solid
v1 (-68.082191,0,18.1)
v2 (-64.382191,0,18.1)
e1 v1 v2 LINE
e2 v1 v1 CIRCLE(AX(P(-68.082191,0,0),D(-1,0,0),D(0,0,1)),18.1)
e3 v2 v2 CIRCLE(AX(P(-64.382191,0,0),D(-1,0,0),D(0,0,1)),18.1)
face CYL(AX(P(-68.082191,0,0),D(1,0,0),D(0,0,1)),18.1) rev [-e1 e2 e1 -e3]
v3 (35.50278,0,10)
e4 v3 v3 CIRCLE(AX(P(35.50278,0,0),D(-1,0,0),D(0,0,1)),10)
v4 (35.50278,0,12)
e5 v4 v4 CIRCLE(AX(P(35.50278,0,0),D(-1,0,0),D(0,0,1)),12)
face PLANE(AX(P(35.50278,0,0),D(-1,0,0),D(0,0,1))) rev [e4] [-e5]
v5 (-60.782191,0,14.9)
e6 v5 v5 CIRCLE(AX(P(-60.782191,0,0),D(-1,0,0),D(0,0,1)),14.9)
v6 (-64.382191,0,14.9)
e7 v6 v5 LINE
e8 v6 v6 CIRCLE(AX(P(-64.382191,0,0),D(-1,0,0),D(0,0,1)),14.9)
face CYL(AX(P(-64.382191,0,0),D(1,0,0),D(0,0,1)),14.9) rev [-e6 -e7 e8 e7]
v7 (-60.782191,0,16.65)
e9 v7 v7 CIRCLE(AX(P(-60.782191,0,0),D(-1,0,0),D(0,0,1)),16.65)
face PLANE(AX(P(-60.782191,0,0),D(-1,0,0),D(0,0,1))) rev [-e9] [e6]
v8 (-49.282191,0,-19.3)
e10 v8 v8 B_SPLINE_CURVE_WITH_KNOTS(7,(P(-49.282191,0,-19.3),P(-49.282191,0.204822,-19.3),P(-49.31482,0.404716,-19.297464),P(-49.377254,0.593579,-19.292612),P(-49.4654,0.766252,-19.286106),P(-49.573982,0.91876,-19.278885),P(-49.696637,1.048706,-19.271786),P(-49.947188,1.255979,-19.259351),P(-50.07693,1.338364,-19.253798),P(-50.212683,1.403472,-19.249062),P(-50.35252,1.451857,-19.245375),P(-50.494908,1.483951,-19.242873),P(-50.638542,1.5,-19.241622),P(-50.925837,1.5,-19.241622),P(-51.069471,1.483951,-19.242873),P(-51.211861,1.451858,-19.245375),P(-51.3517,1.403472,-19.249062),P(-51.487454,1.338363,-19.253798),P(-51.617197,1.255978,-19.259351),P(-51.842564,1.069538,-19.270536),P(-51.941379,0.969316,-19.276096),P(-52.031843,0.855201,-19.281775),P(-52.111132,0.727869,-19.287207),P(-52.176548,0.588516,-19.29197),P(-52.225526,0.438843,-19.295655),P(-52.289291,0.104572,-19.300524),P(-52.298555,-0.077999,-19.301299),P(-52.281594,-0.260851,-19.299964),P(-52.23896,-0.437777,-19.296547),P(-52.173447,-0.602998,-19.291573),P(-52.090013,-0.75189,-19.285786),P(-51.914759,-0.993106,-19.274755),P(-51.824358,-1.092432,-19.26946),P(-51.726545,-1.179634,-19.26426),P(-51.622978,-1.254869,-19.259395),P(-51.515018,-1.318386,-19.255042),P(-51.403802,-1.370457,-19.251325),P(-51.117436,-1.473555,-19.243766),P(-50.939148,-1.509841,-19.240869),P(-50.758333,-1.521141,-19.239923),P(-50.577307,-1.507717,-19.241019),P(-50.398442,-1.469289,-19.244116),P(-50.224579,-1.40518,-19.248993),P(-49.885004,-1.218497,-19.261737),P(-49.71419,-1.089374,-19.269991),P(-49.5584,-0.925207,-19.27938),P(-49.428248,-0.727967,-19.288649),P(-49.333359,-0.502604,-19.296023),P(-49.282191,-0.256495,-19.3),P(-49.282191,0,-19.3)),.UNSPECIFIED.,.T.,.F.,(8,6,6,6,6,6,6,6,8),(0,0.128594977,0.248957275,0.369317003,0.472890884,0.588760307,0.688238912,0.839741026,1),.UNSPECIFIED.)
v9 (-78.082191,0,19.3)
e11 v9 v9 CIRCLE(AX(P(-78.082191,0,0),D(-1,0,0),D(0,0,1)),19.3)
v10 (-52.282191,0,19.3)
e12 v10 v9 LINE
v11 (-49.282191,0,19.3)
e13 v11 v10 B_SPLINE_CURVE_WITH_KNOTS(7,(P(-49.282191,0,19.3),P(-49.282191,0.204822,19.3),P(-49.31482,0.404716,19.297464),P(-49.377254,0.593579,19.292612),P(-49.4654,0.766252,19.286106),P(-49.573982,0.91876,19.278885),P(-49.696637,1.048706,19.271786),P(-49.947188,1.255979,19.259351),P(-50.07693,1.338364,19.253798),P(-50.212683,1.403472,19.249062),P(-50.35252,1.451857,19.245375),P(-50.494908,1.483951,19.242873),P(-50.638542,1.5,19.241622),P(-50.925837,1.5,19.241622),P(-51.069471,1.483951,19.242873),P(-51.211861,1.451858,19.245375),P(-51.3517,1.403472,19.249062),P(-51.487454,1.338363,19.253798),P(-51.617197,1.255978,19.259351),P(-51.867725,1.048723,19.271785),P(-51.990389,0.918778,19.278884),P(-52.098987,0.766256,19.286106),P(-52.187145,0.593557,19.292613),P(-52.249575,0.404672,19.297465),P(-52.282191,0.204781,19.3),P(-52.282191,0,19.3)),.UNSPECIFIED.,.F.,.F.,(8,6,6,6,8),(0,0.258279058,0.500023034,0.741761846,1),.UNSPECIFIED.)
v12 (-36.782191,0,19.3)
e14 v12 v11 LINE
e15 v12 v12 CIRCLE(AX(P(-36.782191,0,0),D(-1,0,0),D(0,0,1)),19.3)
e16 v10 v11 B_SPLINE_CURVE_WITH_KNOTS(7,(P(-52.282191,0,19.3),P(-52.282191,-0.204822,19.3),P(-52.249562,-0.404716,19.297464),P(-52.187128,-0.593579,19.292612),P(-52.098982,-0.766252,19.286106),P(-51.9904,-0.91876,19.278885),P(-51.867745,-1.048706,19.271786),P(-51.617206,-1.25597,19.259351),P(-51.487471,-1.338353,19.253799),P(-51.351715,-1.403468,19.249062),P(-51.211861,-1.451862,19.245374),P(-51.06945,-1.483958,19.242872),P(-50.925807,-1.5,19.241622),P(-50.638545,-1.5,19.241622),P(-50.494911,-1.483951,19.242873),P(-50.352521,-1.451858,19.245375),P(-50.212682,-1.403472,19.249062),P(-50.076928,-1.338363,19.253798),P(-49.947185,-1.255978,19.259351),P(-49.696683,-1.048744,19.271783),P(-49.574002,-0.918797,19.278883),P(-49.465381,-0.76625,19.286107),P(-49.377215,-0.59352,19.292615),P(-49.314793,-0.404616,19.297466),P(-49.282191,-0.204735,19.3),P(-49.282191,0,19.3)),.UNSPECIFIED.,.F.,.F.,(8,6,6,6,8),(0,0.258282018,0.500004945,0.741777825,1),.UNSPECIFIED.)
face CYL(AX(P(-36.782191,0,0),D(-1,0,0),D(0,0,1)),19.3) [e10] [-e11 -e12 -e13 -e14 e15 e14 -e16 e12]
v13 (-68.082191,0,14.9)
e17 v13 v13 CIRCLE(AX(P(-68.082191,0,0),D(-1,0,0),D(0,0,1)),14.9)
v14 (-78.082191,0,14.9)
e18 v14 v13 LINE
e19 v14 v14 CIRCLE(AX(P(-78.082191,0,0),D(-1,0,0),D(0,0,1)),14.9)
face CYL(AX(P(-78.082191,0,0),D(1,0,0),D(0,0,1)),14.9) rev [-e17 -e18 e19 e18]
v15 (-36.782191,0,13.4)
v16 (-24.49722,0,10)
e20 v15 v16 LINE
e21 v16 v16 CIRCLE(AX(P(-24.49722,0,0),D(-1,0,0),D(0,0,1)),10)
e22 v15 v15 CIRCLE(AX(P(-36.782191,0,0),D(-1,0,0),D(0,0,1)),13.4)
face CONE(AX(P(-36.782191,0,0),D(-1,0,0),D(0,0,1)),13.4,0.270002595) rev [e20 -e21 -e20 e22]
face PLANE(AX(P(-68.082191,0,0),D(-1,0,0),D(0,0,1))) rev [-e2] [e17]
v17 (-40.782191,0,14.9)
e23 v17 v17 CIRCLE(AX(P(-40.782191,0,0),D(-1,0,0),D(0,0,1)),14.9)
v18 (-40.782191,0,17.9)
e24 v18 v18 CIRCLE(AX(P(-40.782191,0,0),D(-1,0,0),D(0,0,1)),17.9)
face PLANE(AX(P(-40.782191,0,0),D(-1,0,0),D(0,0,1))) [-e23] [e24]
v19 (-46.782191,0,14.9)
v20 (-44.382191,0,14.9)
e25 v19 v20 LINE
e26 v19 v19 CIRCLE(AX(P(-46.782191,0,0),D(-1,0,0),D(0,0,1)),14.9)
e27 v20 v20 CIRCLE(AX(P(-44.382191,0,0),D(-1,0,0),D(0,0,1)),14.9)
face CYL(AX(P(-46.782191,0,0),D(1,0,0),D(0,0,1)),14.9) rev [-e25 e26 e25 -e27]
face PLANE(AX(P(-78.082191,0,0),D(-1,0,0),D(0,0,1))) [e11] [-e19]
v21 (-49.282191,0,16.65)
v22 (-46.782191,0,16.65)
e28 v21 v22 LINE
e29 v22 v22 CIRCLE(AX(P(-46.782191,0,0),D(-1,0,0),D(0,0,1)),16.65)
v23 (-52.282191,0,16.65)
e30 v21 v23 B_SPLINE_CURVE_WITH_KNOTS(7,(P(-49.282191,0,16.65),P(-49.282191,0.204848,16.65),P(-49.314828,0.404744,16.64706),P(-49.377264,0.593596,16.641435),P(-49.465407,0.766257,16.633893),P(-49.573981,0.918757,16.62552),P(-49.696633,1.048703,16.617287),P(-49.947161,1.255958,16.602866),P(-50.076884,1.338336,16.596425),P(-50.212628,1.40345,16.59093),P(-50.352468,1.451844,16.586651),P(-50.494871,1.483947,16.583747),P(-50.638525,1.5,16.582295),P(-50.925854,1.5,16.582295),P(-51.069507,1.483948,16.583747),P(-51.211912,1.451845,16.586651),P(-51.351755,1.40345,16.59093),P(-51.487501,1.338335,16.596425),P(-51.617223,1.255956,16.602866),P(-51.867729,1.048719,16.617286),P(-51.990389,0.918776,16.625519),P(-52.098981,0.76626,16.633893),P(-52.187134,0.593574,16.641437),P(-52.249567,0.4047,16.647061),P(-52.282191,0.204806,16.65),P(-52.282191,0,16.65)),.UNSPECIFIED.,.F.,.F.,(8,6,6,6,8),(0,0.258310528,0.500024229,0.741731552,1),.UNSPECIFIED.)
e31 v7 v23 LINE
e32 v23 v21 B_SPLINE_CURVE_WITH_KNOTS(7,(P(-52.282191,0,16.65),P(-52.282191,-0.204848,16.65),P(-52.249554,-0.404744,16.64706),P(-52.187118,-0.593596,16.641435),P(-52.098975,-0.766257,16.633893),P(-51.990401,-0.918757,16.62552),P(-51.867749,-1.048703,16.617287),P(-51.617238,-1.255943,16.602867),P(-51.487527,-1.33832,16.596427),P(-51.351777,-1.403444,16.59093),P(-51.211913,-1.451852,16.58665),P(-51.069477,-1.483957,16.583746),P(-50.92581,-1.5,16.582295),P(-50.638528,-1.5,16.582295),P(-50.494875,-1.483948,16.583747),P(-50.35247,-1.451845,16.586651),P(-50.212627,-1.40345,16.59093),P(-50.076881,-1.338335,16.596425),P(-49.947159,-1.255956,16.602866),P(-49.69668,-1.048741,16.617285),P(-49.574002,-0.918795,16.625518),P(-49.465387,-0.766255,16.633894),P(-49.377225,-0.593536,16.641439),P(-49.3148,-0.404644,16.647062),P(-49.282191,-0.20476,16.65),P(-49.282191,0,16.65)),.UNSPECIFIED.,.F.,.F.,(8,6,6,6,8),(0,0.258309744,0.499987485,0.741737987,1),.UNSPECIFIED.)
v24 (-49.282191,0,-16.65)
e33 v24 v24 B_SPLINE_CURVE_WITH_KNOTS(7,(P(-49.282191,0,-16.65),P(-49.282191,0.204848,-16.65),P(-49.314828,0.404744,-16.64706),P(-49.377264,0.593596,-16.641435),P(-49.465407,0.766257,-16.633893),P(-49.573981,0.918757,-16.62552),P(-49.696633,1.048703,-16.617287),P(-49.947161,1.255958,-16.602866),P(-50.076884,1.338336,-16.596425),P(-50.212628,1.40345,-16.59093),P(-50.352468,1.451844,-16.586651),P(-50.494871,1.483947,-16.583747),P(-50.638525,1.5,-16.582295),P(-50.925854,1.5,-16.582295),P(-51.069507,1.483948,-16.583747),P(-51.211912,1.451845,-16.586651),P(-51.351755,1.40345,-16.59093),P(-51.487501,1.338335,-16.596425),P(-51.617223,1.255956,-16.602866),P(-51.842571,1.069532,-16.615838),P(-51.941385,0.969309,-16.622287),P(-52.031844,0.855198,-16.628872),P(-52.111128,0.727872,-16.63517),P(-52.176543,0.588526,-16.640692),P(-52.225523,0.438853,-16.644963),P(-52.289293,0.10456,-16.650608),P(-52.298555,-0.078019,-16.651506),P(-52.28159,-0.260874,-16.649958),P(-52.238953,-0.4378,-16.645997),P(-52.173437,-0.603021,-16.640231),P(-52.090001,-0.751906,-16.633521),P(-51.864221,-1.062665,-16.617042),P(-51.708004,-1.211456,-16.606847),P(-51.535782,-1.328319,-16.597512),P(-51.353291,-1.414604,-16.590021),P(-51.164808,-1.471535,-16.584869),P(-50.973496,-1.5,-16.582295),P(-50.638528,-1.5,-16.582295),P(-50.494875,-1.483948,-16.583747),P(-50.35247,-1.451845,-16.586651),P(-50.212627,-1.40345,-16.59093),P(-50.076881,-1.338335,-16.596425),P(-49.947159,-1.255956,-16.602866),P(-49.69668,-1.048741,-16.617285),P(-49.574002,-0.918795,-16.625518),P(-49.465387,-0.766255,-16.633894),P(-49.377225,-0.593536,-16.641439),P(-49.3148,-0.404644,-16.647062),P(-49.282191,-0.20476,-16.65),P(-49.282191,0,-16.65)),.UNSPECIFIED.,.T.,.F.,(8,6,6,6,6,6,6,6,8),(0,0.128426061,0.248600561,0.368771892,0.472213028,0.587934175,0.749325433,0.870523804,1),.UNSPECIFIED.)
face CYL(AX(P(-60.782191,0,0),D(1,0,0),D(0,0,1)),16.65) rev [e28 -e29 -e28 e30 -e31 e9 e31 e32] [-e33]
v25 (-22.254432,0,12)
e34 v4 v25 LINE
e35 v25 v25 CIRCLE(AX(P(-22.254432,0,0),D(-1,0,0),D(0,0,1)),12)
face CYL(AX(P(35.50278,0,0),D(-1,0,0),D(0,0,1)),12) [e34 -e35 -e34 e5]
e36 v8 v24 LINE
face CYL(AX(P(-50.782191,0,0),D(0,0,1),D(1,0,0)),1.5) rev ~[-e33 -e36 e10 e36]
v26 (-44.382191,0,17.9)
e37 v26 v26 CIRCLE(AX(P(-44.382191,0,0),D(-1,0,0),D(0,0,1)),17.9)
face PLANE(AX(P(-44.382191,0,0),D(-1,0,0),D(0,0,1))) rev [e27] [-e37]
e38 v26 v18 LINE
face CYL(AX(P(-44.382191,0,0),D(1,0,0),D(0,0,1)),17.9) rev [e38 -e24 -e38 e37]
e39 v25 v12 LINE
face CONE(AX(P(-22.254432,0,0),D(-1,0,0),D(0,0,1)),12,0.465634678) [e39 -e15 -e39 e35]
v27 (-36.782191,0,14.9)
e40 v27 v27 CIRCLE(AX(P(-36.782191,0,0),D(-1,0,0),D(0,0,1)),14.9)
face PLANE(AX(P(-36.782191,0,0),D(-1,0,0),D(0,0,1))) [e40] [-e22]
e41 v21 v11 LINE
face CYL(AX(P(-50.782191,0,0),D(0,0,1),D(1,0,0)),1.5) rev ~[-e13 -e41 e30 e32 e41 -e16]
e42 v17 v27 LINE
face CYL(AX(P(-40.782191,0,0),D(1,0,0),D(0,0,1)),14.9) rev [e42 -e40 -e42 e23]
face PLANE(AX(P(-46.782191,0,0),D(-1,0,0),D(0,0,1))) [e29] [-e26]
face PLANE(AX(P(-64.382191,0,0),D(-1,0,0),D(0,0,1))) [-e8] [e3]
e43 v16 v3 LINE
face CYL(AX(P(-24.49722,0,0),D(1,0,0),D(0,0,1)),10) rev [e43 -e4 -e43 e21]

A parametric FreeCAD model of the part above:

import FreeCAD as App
import Part
import Sketcher

V = App.Vector
Q = App.Units.Quantity

doc = App.newDocument("Part")
body = doc.addObject("PartDesign::Body", "Body")

sketch1 = doc.addObject("Sketcher::SketchObject", "Sketch")
body.addObject(sketch1)
sketch1.AttachmentSupport = (doc.XZ_Plane, [""])
sketch1.MapMode = "FlatFace"
sketch1.addGeometry([
    Part.LineSegment(V(-36.8, 19.3, 0), V(-78.1, 19.3, 0)),
    Part.LineSegment(V(-78.1, 19.3, 0), V(-78.1, 14.9, 0)),
    Part.LineSegment(V(-78.1, 14.9, 0), V(-68.1, 14.9, 0)),
    Part.LineSegment(V(-68.1, 14.9, 0), V(-68.1, 18.1, 0)),
    Part.LineSegment(V(-68.1, 18.1, 0), V(-64.4, 18.1, 0)),
    Part.LineSegment(V(-64.4, 18.1, 0), V(-64.4, 14.9, 0)),
    Part.LineSegment(V(-64.4, 14.9, 0), V(-60.8, 14.9, 0)),
    Part.LineSegment(V(-60.8, 14.9, 0), V(-60.8, 16.6, 0)),
    Part.LineSegment(V(-60.8, 16.6, 0), V(-46.8, 16.6, 0)),
    Part.LineSegment(V(-46.8, 16.6, 0), V(-46.8, 14.9, 0)),
    Part.LineSegment(V(-46.8, 14.9, 0), V(-44.4, 14.9, 0)),
    Part.LineSegment(V(-44.4, 14.9, 0), V(-44.4, 17.9, 0)),
    Part.LineSegment(V(-44.4, 17.9, 0), V(-40.8, 17.9, 0)),
    Part.LineSegment(V(-40.8, 17.9, 0), V(-40.8, 14.9, 0)),
    Part.LineSegment(V(-40.8, 14.9, 0), V(-36.8, 14.9, 0)),
    Part.LineSegment(V(-36.8, 14.9, 0), V(-36.8, 13.4, 0)),
    Part.LineSegment(V(-36.8, 13.4, 0), V(-24.5, 10, 0)),
    Part.LineSegment(V(-24.5, 10, 0), V(35.5, 10, 0)),
    Part.LineSegment(V(35.5, 10, 0), V(35.5, 12, 0)),
    Part.LineSegment(V(35.5, 12, 0), V(-22.3, 12, 0)),
    Part.LineSegment(V(-22.3, 12, 0), V(-36.8, 19.3, 0)),
], False)
sketch1.addConstraint([
    Sketcher.Constraint("Coincident", 0, 2, 1, 1),
    Sketcher.Constraint("Coincident", 1, 2, 2, 1),
    Sketcher.Constraint("Coincident", 2, 2, 3, 1),
    Sketcher.Constraint("Coincident", 3, 2, 4, 1),
    Sketcher.Constraint("Coincident", 4, 2, 5, 1),
    Sketcher.Constraint("Coincident", 5, 2, 6, 1),
    Sketcher.Constraint("Coincident", 6, 2, 7, 1),
    Sketcher.Constraint("Coincident", 7, 2, 8, 1),
    Sketcher.Constraint("Coincident", 8, 2, 9, 1),
    Sketcher.Constraint("Coincident", 9, 2, 10, 1),
    Sketcher.Constraint("Coincident", 10, 2, 11, 1),
    Sketcher.Constraint("Coincident", 11, 2, 12, 1),
    Sketcher.Constraint("Coincident", 12, 2, 13, 1),
    Sketcher.Constraint("Coincident", 13, 2, 14, 1),
    Sketcher.Constraint("Coincident", 14, 2, 15, 1),
    Sketcher.Constraint("Coincident", 15, 2, 16, 1),
    Sketcher.Constraint("Coincident", 16, 2, 17, 1),
    Sketcher.Constraint("Coincident", 17, 2, 18, 1),
    Sketcher.Constraint("Coincident", 18, 2, 19, 1),
    Sketcher.Constraint("Coincident", 19, 2, 20, 1),
    Sketcher.Constraint("Coincident", 20, 2, 0, 1),
    Sketcher.Constraint("Horizontal", 0),
    Sketcher.Constraint("Vertical", 1),
    Sketcher.Constraint("Horizontal", 2),
    Sketcher.Constraint("Vertical", 3),
    Sketcher.Constraint("Horizontal", 4),
    Sketcher.Constraint("Vertical", 5),
    Sketcher.Constraint("Horizontal", 6),
    Sketcher.Constraint("Vertical", 7),
    Sketcher.Constraint("Horizontal", 8),
    Sketcher.Constraint("Vertical", 9),
    Sketcher.Constraint("Horizontal", 10),
    Sketcher.Constraint("Vertical", 11),
    Sketcher.Constraint("Horizontal", 12),
    Sketcher.Constraint("Vertical", 13),
    Sketcher.Constraint("Horizontal", 14),
    Sketcher.Constraint("Vertical", 15),
    Sketcher.Constraint("Horizontal", 17),
    Sketcher.Constraint("Vertical", 18),
    Sketcher.Constraint("Horizontal", 19),
    Sketcher.Constraint("Horizontal", 2, 2, 5, 2),
    Sketcher.Constraint("Horizontal", 6, 2, 9, 2),
    Sketcher.Constraint("Horizontal", 10, 2, 13, 2),
    Sketcher.Constraint("Vertical", 15, 2, 20, 2),
    Sketcher.Constraint("Equal", 6, 12),
    Sketcher.Constraint("DistanceX", 2, 1, 2, 2, Q("10 mm")),
    Sketcher.Constraint("DistanceX", 8, 1, 8, 2, Q("14 mm")),
    Sketcher.Constraint("DistanceX", 14, 1, 14, 2, Q("4 mm")),
    Sketcher.Constraint("DistanceX", 17, 1, 17, 2, Q("60 mm")),
    Sketcher.Constraint("DistanceY", 11, 1, 11, 2, Q("3 mm")),
    Sketcher.Constraint("DistanceY", 18, 1, 18, 2, Q("2 mm")),
    Sketcher.Constraint("DistanceX", 0, 2, 0, 1, Q("41.3 mm")),
    Sketcher.Constraint("DistanceX", 4, 1, 4, 2, Q("3.7 mm")),
    Sketcher.Constraint("DistanceX", 6, 1, 6, 2, Q("3.6 mm")),
    Sketcher.Constraint("DistanceY", 1, 2, 1, 1, Q("4.4 mm")),
    Sketcher.Constraint("DistanceY", 3, 1, 3, 2, Q("3.2 mm")),
    Sketcher.Constraint("DistanceY", 15, 2, 15, 1, Q("1.5 mm")),
    Sketcher.Constraint("DistanceY", -1, 1, 16, 2, Q("10 mm")),
    Sketcher.Constraint("DistanceY", 7, 1, 7, 2, Q("1.75 mm")),
    Sketcher.Constraint("DistanceY", -1, 1, 0, 2, Q("19.3 mm")),
    Sketcher.Constraint("Angle", 16, Q("-15.470009 deg")),
    Sketcher.Constraint("DistanceX", 19, 2, 19, 1, Q("57.757212 mm")),
    Sketcher.Constraint("DistanceX", 0, 2, -1, 1, Q("78.082191 mm")),
])
revolution = doc.addObject("PartDesign::Revolution", "Revolution")
body.addObject(revolution)
revolution.Profile = sketch1
revolution.ReferenceAxis = (sketch1, ["H_Axis"])
revolution.Angle = 360

sketch2 = doc.addObject("Sketcher::SketchObject", "Sketch001")
body.addObject(sketch2)
sketch2.AttachmentSupport = (doc.XY_Plane, [""])
sketch2.MapMode = "FlatFace"
sketch2.addGeometry(Part.Circle(V(-50.8, 0, 0), V(0, 0, 1), 1.5), False)
sketch2.addConstraint([
    Sketcher.Constraint("PointOnObject", 0, 3, -1),
    Sketcher.Constraint("Diameter", 0, Q("3 mm")),
    Sketcher.Constraint("DistanceX", 0, 3, -1, 1, Q("50.782191 mm")),
])
pocket1 = doc.addObject("PartDesign::Pocket", "Pocket")
body.addObject(pocket1)
pocket1.Profile = sketch2
pocket1.Length = 50
pocket1.Midplane = True

doc.recompute()
